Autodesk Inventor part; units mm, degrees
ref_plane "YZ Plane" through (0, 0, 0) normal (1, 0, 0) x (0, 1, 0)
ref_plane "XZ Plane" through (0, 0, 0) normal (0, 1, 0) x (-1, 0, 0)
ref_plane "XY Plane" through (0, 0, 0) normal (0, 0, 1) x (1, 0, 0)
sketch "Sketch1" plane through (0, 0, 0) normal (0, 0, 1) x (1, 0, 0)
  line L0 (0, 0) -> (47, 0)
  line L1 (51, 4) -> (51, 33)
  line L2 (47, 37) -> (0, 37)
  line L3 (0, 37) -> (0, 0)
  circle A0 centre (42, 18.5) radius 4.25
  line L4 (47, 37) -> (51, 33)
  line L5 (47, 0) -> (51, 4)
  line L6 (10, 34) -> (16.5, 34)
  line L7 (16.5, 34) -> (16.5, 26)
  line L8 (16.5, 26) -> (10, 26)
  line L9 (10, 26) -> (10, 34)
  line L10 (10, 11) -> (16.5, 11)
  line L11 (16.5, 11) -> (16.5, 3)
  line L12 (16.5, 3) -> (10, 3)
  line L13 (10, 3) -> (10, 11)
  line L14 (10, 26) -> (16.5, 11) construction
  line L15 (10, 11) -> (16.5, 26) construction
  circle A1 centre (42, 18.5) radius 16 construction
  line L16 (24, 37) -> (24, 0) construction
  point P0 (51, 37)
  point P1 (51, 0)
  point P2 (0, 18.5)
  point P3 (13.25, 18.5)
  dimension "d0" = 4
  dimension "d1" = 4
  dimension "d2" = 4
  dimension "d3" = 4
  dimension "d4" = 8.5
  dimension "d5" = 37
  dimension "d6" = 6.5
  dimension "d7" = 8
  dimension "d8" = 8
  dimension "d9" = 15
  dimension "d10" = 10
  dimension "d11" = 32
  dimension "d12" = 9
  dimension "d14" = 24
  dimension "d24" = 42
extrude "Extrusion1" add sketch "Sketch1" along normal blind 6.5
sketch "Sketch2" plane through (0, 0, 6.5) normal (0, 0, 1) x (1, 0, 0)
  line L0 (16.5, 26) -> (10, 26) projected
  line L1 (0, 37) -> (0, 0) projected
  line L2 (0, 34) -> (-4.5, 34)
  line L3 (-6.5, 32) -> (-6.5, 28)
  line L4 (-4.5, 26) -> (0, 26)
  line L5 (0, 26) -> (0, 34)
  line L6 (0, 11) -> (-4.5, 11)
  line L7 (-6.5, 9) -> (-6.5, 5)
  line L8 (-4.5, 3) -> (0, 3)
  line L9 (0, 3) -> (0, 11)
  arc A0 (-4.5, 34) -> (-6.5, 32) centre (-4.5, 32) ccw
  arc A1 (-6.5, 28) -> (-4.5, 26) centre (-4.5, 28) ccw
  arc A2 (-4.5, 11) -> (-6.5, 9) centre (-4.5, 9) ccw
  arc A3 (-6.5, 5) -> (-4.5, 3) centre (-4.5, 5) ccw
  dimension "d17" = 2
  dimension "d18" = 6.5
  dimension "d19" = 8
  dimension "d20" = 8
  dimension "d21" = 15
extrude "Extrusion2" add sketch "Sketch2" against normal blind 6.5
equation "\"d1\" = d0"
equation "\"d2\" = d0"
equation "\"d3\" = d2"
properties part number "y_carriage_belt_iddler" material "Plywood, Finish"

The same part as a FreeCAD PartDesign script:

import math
import FreeCAD as App
import Part
import Sketcher

doc = App.newDocument("Part")
body = doc.addObject("PartDesign::Body", "Body")

# Sketch on XY plane
sketch1 = body.newObject("Sketcher::SketchObject", "Sketch")
sketch1.AttachmentSupport = (doc.getObject("XY_Plane"), [""])
sketch1.MapMode = "FlatFace"
sketch1.addGeometry([
    Part.LineSegment(App.Vector(0, 37, 0), App.Vector(0, 0, 0)),  # 0
    Part.LineSegment(App.Vector(0, 0, 0), App.Vector(47, 0, 0)),  # 1
    Part.LineSegment(App.Vector(47, 0, 0), App.Vector(51, 4, 0)),  # 2
    Part.LineSegment(App.Vector(51, 4, 0), App.Vector(51, 33, 0)),  # 3
    Part.LineSegment(App.Vector(51, 33, 0), App.Vector(47, 37, 0)),  # 4
    Part.LineSegment(App.Vector(47, 37, 0), App.Vector(0, 37, 0)),  # 5
    Part.LineSegment(App.Vector(10, 3, 0), App.Vector(10, 11, 0)),  # 6
    Part.LineSegment(App.Vector(10, 11, 0), App.Vector(16.5, 11, 0)),  # 7
    Part.LineSegment(App.Vector(16.5, 11, 0), App.Vector(16.5, 3, 0)),  # 8
    Part.LineSegment(App.Vector(16.5, 3, 0), App.Vector(10, 3, 0)),  # 9
    Part.LineSegment(App.Vector(10, 26, 0), App.Vector(10, 34, 0)),  # 10
    Part.LineSegment(App.Vector(10, 34, 0), App.Vector(16.5, 34, 0)),  # 11
    Part.LineSegment(App.Vector(16.5, 34, 0), App.Vector(16.5, 26, 0)),  # 12
    Part.LineSegment(App.Vector(16.5, 26, 0), App.Vector(10, 26, 0)),  # 13
    Part.Circle(App.Vector(42, 18.5, 0), App.Vector(0, 0, 1), 4.2),  # 14
], False)
sketch1.addConstraint([
    Sketcher.Constraint("Coincident", 0, 2, 1, 1),
    Sketcher.Constraint("Coincident", 1, 2, 2, 1),
    Sketcher.Constraint("Coincident", 2, 2, 3, 1),
    Sketcher.Constraint("Coincident", 3, 2, 4, 1),
    Sketcher.Constraint("Coincident", 4, 2, 5, 1),
    Sketcher.Constraint("Coincident", 5, 2, 0, 1),
    Sketcher.Constraint("Coincident", 6, 2, 7, 1),
    Sketcher.Constraint("Coincident", 7, 2, 8, 1),
    Sketcher.Constraint("Coincident", 8, 2, 9, 1),
    Sketcher.Constraint("Coincident", 9, 2, 6, 1),
    Sketcher.Constraint("Coincident", 10, 2, 11, 1),
    Sketcher.Constraint("Coincident", 11, 2, 12, 1),
    Sketcher.Constraint("Coincident", 12, 2, 13, 1),
    Sketcher.Constraint("Coincident", 13, 2, 10, 1),
    Sketcher.Constraint("Vertical", 0),
    Sketcher.Constraint("Horizontal", 1),
    Sketcher.Constraint("Vertical", 3),
    Sketcher.Constraint("Horizontal", 5),
    Sketcher.Constraint("Vertical", 6),
    Sketcher.Constraint("Horizontal", 7),
    Sketcher.Constraint("Vertical", 8),
    Sketcher.Constraint("Horizontal", 9),
    Sketcher.Constraint("Vertical", 10),
    Sketcher.Constraint("Horizontal", 11),
    Sketcher.Constraint("Vertical", 12),
    Sketcher.Constraint("Horizontal", 13),
    Sketcher.Constraint("Coincident", 0, 2, -1, 1),
    Sketcher.Constraint("Perpendicular", 2, 4),
    Sketcher.Constraint("Vertical", 1, 2, 4, 2),
    Sketcher.Constraint("Vertical", 9, 2, 10, 2),
    Sketcher.Constraint("Vertical", 8, 2, 11, 2),
    Sketcher.Constraint("Equal", 8, 10),
    Sketcher.Constraint("Equal", 2, 4),
    Sketcher.Constraint("Diameter", 14, 8.5),
    Sketcher.Constraint("DistanceY", 0, 2, 0, 1, 37.0),
    Sketcher.Constraint("DistanceY", 6, 1, 6, 2, 8.0),
    Sketcher.Constraint("DistanceX", 7, 1, 7, 2, 6.5),
    Sketcher.Constraint("DistanceX", -1, 1, 14, 3, 42.0),
    Sketcher.Constraint("DistanceY", -1, 1, 2, 2, 4.0),
    Sketcher.Constraint("DistanceX", -1, 1, 6, 2, 10.0),
    Sketcher.Constraint("DistanceX", 14, 3, 2, 2, 9.0),
    Sketcher.Constraint("DistanceY", 7, 2, 12, 2, 15.0),
    Sketcher.Constraint("DistanceY", -1, 1, 6, 2, 11.0),
    Sketcher.Constraint("DistanceY", -1, 1, 14, 3, 18.5),
])
pad1 = body.newObject("PartDesign::Pad", "Pad")
pad1.Profile = sketch1
pad1.Length = 6.5

# Sketch on XY plane
sketch2 = body.newObject("Sketcher::SketchObject", "Sketch001")
sketch2.AttachmentSupport = (doc.getObject("XY_Plane"), [""])
sketch2.MapMode = "FlatFace"
sketch2.AttachmentOffset = App.Placement(App.Vector(0, 0, 6.5), App.Rotation())
sketch2.addGeometry([
    Part.LineSegment(App.Vector(0, 3, 0), App.Vector(0, 11, 0)),  # 0
    Part.LineSegment(App.Vector(0, 11, 0), App.Vector(-4.5, 11, 0)),  # 1
    Part.ArcOfCircle(Part.Circle(App.Vector(-4.5, 9, 0), App.Vector(0, 0, 1), 2), math.radians(90), math.radians(180)),  # 2
    Part.LineSegment(App.Vector(-6.5, 9, 0), App.Vector(-6.5, 5, 0)),  # 3
    Part.ArcOfCircle(Part.Circle(App.Vector(-4.5, 5, 0), App.Vector(0, 0, 1), 2), math.radians(180), math.radians(270)),  # 4
    Part.LineSegment(App.Vector(-4.5, 3, 0), App.Vector(0, 3, 0)),  # 5
    Part.LineSegment(App.Vector(0, 26, 0), App.Vector(0, 34, 0)),  # 6
    Part.LineSegment(App.Vector(0, 34, 0), App.Vector(-4.5, 34, 0)),  # 7
    Part.ArcOfCircle(Part.Circle(App.Vector(-4.5, 32, 0), App.Vector(0, 0, 1), 2), math.radians(90), math.radians(180)),  # 8
    Part.LineSegment(App.Vector(-6.5, 32, 0), App.Vector(-6.5, 28, 0)),  # 9
    Part.ArcOfCircle(Part.Circle(App.Vector(-4.5, 28, 0), App.Vector(0, 0, 1), 2), math.radians(180), math.radians(270)),  # 10
    Part.LineSegment(App.Vector(-4.5, 26, 0), App.Vector(0, 26, 0)),  # 11
], False)
sketch2.addConstraint([
    Sketcher.Constraint("Coincident", 0, 2, 1, 1),
    Sketcher.Constraint("Tangent", 1, 2, 2, 1),
    Sketcher.Constraint("Tangent", 2, 2, 3, 1),
    Sketcher.Constraint("Tangent", 3, 2, 4, 1),
    Sketcher.Constraint("Tangent", 4, 2, 5, 1),
    Sketcher.Constraint("Coincident", 5, 2, 0, 1),
    Sketcher.Constraint("Coincident", 6, 2, 7, 1),
    Sketcher.Constraint("Tangent", 7, 2, 8, 1),
    Sketcher.Constraint("Tangent", 8, 2, 9, 1),
    Sketcher.Constraint("Tangent", 9, 2, 10, 1),
    Sketcher.Constraint("Tangent", 10, 2, 11, 1),
    Sketcher.Constraint("Coincident", 11, 2, 6, 1),
    Sketcher.Constraint("Vertical", 0),
    Sketcher.Constraint("Horizontal", 1),
    Sketcher.Constraint("Vertical", 3),
    Sketcher.Constraint("Horizontal", 5),
    Sketcher.Constraint("Vertical", 6),
    Sketcher.Constraint("Horizontal", 7),
    Sketcher.Constraint("Vertical", 9),
    Sketcher.Constraint("Horizontal", 11),
    Sketcher.Constraint("Equal", 2, 4),
    Sketcher.Constraint("Equal", 4, 8),
    Sketcher.Constraint("Equal", 8, 10),
    Sketcher.Constraint("PointOnObject", 0, 2, -2),
    Sketcher.Constraint("PointOnObject", 6, 2, -2),
    Sketcher.Constraint("Vertical", 4, 3, 8, 3),
    Sketcher.Constraint("Equal", 0, 6),
    Sketcher.Constraint("Radius", 2, 2.0),
    Sketcher.Constraint("DistanceY", 0, 1, 0, 2, 8.0),
    Sketcher.Constraint("DistanceX", 2, 2, -1, 1, 6.5),
    Sketcher.Constraint("DistanceY", -1, 1, 2, 3, 9.0),
    Sketcher.Constraint("DistanceY", -1, 1, 8, 3, 32.0),
])
pad2 = body.newObject("PartDesign::Pad", "Pad001")
pad2.Profile = sketch2
pad2.Length = 6.5
pad2.Reversed = True

doc.recompute()
